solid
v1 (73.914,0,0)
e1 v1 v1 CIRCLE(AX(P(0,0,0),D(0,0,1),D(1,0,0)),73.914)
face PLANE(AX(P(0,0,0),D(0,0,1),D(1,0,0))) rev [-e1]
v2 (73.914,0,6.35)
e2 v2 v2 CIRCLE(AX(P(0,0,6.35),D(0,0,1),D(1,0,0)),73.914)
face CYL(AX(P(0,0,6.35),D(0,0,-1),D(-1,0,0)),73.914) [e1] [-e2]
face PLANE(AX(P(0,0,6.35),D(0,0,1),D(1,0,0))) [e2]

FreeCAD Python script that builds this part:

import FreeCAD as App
import Part
import Sketcher

V = App.Vector
Q = App.Units.Quantity

doc = App.newDocument("Part")
body = doc.addObject("PartDesign::Body", "Body")

# Sketch on XY plane
sketch1 = body.newObject("Sketcher::SketchObject", "Sketch")
sketch1.AttachmentSupport = (doc.getObject("XY_Plane"), [""])
sketch1.MapMode = "FlatFace"
sketch1.addGeometry(Part.Circle(V(0, 0, 0), V(0, 0, 1), 74), False)
sketch1.addConstraint([
    Sketcher.Constraint("Coincident", 0, 3, -1, 1),
    Sketcher.Constraint("Diameter", 0, Q("5.82 in")),
])
pad1 = body.newObject("PartDesign::Pad", "Pad")
pad1.Profile = sketch1
pad1.Length = Q("0.25 in")

doc.recompute()
